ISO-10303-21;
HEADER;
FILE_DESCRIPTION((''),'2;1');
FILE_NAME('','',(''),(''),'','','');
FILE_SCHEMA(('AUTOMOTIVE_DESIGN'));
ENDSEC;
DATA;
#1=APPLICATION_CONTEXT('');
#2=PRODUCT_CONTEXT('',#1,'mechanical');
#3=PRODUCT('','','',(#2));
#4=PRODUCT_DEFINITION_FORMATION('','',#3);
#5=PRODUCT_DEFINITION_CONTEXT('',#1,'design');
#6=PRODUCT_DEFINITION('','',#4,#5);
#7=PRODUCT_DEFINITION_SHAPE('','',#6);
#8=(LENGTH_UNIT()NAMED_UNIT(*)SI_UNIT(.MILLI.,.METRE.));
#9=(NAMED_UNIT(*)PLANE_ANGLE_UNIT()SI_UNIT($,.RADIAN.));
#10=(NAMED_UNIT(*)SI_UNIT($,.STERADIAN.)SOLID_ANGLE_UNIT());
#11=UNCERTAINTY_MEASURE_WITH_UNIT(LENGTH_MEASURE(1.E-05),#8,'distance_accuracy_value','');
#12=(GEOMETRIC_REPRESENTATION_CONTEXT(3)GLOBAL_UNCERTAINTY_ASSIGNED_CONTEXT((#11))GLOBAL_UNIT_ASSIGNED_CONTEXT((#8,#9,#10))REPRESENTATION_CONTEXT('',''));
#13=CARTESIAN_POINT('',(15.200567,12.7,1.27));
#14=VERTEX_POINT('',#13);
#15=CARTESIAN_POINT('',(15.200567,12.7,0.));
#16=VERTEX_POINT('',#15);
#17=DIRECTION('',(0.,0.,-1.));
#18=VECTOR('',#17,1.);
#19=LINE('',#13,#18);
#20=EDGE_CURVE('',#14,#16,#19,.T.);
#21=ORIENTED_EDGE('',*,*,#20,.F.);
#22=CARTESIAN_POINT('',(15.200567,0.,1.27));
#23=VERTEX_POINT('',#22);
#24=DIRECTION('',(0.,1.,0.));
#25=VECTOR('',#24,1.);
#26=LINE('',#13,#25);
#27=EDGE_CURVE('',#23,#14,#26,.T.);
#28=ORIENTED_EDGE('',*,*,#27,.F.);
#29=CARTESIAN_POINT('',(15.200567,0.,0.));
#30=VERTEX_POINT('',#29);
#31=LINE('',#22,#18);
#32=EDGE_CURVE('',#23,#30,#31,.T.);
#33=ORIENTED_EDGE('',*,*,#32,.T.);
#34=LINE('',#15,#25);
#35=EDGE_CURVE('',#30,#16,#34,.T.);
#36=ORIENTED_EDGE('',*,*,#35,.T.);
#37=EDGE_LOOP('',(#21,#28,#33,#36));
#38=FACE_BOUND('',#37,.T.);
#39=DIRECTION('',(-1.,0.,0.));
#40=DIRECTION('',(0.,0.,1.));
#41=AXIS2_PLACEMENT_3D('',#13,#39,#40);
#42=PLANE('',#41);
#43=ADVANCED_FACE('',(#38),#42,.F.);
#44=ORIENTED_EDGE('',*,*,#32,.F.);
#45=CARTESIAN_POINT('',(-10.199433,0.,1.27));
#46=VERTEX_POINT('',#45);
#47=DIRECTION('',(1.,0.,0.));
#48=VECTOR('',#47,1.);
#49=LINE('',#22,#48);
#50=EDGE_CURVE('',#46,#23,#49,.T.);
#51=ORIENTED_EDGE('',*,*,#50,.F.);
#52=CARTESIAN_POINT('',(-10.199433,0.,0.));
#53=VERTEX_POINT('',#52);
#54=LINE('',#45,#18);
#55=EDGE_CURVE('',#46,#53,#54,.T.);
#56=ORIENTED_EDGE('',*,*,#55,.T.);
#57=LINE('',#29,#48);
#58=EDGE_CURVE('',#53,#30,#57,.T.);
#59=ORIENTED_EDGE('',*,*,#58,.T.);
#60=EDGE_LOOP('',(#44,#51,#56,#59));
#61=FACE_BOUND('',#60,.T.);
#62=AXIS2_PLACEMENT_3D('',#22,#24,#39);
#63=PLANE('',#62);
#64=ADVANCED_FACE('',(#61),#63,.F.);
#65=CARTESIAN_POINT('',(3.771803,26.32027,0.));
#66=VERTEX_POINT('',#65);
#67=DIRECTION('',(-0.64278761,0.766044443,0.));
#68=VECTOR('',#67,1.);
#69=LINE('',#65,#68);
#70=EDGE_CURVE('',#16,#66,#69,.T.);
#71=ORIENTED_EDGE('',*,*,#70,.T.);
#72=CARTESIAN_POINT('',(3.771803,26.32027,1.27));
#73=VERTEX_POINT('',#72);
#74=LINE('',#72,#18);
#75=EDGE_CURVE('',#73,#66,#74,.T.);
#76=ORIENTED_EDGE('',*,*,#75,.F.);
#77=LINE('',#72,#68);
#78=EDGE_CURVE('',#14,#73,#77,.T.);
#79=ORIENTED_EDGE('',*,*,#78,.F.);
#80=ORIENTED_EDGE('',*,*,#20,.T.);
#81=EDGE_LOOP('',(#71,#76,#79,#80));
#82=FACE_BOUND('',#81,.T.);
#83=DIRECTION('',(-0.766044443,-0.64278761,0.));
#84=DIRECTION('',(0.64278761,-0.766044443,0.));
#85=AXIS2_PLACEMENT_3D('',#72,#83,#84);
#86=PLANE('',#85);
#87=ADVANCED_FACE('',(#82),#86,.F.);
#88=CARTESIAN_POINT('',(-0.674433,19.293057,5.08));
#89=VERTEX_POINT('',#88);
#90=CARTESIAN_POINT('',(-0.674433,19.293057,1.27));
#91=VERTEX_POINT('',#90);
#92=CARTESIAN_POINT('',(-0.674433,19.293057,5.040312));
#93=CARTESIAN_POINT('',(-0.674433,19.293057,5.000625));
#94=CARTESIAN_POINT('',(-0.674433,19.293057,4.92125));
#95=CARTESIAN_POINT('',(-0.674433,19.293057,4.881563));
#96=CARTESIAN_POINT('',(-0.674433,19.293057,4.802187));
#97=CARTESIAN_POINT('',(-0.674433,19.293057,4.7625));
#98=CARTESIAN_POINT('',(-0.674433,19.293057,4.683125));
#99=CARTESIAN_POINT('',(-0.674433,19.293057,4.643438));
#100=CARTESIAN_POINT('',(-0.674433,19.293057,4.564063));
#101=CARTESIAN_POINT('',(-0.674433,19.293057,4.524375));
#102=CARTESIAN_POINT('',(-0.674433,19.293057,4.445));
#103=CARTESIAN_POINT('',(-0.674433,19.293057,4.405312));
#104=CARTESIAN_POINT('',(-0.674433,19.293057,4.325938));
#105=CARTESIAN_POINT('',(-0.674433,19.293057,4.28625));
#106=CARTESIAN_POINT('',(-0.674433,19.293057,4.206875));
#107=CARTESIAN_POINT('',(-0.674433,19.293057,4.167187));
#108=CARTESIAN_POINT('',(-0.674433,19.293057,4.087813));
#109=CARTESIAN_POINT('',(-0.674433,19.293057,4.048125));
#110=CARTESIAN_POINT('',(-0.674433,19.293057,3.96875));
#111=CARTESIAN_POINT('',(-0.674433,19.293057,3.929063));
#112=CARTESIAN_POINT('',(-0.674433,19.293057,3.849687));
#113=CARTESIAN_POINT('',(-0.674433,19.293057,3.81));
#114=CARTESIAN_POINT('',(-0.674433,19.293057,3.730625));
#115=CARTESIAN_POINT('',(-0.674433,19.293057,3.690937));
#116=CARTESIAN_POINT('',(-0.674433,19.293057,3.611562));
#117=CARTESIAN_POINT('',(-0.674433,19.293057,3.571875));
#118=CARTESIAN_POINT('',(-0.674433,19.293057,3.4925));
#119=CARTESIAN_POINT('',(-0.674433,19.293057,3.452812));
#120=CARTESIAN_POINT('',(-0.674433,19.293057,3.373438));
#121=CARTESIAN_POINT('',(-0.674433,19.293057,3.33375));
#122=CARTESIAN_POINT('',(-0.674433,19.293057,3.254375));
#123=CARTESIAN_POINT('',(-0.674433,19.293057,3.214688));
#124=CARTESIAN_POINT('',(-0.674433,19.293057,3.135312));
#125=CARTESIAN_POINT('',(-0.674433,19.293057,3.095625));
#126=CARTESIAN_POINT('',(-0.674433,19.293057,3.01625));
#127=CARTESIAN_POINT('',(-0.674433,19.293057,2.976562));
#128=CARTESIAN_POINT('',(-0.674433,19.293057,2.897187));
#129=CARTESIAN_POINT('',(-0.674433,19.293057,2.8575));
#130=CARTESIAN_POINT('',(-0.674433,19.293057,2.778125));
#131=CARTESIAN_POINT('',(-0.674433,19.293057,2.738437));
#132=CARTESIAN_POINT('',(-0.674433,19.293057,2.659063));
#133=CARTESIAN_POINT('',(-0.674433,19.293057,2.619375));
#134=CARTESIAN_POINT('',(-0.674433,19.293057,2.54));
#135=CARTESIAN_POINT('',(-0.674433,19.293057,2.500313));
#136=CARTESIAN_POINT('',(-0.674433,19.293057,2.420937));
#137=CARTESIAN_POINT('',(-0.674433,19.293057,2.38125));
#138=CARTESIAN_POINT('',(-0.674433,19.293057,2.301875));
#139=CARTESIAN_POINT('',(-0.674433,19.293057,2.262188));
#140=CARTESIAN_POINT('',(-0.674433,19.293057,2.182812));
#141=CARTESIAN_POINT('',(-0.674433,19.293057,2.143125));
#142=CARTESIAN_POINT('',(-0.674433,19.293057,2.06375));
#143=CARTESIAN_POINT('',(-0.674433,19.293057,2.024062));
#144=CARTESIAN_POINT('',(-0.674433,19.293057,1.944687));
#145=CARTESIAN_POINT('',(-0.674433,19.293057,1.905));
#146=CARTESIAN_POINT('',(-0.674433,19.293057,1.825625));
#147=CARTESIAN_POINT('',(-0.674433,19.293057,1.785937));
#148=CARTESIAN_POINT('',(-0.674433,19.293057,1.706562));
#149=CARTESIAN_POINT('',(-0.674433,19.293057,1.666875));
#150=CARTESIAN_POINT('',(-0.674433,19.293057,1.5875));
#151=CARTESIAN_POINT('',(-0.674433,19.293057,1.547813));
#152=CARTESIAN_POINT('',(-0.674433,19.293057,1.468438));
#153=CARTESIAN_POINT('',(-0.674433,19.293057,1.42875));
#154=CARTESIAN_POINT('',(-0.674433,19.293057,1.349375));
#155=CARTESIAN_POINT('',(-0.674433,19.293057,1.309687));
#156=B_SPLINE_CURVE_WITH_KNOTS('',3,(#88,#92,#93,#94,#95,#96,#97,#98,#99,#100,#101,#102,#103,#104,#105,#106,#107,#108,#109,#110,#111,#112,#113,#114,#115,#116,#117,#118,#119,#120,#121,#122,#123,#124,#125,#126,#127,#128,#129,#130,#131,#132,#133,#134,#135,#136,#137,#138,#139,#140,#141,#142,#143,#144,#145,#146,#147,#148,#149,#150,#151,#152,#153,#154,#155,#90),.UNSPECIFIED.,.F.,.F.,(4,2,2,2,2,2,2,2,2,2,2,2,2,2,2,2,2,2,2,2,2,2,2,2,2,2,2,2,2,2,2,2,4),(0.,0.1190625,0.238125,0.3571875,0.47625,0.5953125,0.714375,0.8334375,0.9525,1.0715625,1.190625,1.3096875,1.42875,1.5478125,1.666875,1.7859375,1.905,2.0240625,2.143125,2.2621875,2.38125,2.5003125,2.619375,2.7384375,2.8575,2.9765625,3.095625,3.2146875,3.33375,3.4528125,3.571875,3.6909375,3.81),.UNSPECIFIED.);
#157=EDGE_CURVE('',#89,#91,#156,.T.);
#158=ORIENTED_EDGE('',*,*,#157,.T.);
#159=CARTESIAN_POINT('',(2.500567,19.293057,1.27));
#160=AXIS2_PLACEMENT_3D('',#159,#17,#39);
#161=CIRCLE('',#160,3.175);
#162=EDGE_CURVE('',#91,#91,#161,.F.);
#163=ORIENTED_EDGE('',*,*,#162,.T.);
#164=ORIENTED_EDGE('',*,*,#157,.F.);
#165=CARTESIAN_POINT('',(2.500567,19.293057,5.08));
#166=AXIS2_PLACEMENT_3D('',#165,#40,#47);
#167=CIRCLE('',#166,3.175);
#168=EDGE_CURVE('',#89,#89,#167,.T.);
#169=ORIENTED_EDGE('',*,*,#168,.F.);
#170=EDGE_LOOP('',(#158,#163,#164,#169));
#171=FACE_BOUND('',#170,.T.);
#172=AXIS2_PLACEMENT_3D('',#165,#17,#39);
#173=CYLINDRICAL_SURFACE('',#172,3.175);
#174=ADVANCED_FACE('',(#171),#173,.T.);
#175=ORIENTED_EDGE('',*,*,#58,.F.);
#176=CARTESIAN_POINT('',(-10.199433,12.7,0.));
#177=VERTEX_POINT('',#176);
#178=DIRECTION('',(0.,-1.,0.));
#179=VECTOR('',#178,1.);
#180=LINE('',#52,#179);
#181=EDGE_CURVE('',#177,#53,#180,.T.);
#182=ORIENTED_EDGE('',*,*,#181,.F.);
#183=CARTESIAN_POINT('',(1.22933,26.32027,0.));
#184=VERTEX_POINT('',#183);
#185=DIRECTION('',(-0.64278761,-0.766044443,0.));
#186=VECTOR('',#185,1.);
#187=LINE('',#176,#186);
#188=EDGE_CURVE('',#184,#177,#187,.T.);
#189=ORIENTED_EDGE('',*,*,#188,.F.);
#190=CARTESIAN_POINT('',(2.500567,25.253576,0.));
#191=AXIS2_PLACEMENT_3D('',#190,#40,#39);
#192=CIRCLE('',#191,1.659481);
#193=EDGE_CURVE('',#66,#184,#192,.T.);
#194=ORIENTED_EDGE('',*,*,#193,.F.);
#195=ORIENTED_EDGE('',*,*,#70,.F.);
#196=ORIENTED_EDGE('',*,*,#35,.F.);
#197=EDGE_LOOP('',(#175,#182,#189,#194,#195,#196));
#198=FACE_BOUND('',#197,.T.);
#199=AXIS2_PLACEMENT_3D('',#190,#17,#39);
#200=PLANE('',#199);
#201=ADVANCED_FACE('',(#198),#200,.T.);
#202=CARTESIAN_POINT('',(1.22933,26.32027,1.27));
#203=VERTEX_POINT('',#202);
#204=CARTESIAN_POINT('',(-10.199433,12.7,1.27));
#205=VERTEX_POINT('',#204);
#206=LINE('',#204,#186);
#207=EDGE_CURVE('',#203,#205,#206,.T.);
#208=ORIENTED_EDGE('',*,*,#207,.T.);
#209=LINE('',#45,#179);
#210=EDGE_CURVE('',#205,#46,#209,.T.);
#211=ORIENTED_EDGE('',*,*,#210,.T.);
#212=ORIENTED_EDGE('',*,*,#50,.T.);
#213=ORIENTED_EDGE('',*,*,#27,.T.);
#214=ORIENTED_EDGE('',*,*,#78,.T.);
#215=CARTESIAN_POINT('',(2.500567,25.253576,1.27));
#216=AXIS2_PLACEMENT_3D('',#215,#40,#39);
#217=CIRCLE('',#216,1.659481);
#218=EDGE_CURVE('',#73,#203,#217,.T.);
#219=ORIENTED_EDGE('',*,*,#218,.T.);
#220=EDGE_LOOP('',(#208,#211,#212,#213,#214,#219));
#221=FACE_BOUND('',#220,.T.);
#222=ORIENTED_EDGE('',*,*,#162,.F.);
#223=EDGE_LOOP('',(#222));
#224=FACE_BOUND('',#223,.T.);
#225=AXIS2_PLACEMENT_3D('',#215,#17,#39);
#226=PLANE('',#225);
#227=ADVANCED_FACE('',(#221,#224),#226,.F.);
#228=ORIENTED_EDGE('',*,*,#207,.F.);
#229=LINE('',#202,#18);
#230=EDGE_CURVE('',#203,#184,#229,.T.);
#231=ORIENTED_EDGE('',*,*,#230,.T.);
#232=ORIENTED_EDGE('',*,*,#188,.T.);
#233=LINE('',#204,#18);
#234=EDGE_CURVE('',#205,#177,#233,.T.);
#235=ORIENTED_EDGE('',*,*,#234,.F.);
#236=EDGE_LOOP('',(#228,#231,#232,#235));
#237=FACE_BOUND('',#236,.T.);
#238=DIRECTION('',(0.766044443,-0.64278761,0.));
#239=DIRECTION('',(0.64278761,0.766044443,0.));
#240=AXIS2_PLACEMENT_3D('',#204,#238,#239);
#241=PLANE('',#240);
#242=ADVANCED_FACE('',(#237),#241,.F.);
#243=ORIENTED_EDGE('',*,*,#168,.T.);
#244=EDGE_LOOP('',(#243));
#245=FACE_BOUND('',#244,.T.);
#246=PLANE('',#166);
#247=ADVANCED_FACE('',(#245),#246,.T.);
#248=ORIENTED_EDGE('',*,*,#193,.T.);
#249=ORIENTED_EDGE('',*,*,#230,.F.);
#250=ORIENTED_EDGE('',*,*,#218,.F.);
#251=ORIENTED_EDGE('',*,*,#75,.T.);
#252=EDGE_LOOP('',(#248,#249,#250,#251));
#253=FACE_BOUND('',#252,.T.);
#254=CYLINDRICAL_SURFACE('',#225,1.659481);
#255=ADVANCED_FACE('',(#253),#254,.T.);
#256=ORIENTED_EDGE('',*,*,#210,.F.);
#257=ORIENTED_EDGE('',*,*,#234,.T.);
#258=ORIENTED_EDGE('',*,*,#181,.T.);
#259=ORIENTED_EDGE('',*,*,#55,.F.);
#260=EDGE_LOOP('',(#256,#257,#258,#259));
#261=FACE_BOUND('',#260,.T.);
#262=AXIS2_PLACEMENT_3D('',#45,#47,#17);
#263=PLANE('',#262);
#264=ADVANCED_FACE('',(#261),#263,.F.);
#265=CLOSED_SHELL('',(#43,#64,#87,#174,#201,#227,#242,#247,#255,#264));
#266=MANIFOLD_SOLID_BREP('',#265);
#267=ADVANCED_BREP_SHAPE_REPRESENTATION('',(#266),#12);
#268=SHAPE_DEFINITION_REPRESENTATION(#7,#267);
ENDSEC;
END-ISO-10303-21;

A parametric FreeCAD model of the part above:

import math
import FreeCAD as App
import Part
import Sketcher
from FreeCAD import Vector
Q = App.Units.Quantity

doc = App.newDocument("Part")
body = doc.addObject("PartDesign::Body", "Body")

# Sketch on XY plane
sketch1 = body.newObject("Sketcher::SketchObject", "Sketch")
sketch1.AttachmentSupport = (doc.getObject("XY_Plane"), [""])
sketch1.MapMode = "FlatFace"
sketch1.addGeometry(Part.LineSegment(Vector(-10.2, 12.7, 0), Vector(-10.2, 0, 0)), False)
sketch1.addGeometry(Part.LineSegment(Vector(-10.2, 0, 0), Vector(15.2, 0, 0)), False)
sketch1.addGeometry(Part.LineSegment(Vector(15.2, 0, 0), Vector(15.2, 12.7, 0)), False)
sketch1.addGeometry(Part.LineSegment(Vector(15.2, 12.7, 0), Vector(3.8, 26.3, 0)), False)
sketch1.addGeometry(Part.ArcOfCircle(Part.Circle(Vector(2.5, 25.3, 0), Vector(0, 0, 1), 1.7), math.radians(40), math.radians(140)), False)
sketch1.addGeometry(Part.LineSegment(Vector(1.2, 26.3, 0), Vector(-10.2, 12.7, 0)), False)
sketch1.addConstraint(Sketcher.Constraint("Coincident", 0, 2, 1, 1))
sketch1.addConstraint(Sketcher.Constraint("Coincident", 1, 2, 2, 1))
sketch1.addConstraint(Sketcher.Constraint("Coincident", 2, 2, 3, 1))
sketch1.addConstraint(Sketcher.Constraint("Tangent", 3, 2, 4, 1))
sketch1.addConstraint(Sketcher.Constraint("Tangent", 4, 2, 5, 1))
sketch1.addConstraint(Sketcher.Constraint("Coincident", 5, 2, 0, 1))
sketch1.addConstraint(Sketcher.Constraint("Vertical", 0))
sketch1.addConstraint(Sketcher.Constraint("Horizontal", 1))
sketch1.addConstraint(Sketcher.Constraint("Vertical", 2))
sketch1.addConstraint(Sketcher.Constraint("PointOnObject", 0, 2, -1))
sketch1.addConstraint(Sketcher.Constraint("Horizontal", 3, 2, 4, 2))
sketch1.addConstraint(Sketcher.Constraint("Horizontal", 2, 2, 5, 2))
sketch1.addConstraint(Sketcher.Constraint("DistanceX", 1, 1, 1, 2, Q("1 in")))
sketch1.addConstraint(Sketcher.Constraint("DistanceY", 0, 2, 0, 1, Q("0.5 in")))
sketch1.addConstraint(Sketcher.Constraint("Angle", 3, Q("130 deg")))
sketch1.addConstraint(Sketcher.Constraint("Distance", 3, Q("0.7 in")))
sketch1.addConstraint(Sketcher.Constraint("DistanceX", -1, 1, 4, 2, Q("1.22933 mm")))
pad1 = body.newObject("PartDesign::Pad", "Pad")
pad1.Profile = sketch1
pad1.Length = Q("0.05 in")

# Sketch on XY plane
sketch2 = body.newObject("Sketcher::SketchObject", "Sketch001")
sketch2.AttachmentSupport = (doc.getObject("XY_Plane"), [""])
sketch2.MapMode = "FlatFace"
sketch2.AttachmentOffset = App.Placement(Vector(0, 0, 0.05 * 25.4), App.Rotation())
sketch2.addGeometry(Part.Circle(Vector(2.5, 19.3, 0), Vector(0, 0, 1), 3.2), False)
sketch2.addConstraint(Sketcher.Constraint("Diameter", 0, Q("0.25 in")))
sketch2.addConstraint(Sketcher.Constraint("DistanceX", -1, 1, 0, 3, Q("2.500567 mm")))
sketch2.addConstraint(Sketcher.Constraint("DistanceY", -1, 1, 0, 3, Q("19.293057 mm")))
pad2 = body.newObject("PartDesign::Pad", "Pad001")
pad2.Profile = sketch2
pad2.Length = Q("0.15 in")

doc.recompute()
